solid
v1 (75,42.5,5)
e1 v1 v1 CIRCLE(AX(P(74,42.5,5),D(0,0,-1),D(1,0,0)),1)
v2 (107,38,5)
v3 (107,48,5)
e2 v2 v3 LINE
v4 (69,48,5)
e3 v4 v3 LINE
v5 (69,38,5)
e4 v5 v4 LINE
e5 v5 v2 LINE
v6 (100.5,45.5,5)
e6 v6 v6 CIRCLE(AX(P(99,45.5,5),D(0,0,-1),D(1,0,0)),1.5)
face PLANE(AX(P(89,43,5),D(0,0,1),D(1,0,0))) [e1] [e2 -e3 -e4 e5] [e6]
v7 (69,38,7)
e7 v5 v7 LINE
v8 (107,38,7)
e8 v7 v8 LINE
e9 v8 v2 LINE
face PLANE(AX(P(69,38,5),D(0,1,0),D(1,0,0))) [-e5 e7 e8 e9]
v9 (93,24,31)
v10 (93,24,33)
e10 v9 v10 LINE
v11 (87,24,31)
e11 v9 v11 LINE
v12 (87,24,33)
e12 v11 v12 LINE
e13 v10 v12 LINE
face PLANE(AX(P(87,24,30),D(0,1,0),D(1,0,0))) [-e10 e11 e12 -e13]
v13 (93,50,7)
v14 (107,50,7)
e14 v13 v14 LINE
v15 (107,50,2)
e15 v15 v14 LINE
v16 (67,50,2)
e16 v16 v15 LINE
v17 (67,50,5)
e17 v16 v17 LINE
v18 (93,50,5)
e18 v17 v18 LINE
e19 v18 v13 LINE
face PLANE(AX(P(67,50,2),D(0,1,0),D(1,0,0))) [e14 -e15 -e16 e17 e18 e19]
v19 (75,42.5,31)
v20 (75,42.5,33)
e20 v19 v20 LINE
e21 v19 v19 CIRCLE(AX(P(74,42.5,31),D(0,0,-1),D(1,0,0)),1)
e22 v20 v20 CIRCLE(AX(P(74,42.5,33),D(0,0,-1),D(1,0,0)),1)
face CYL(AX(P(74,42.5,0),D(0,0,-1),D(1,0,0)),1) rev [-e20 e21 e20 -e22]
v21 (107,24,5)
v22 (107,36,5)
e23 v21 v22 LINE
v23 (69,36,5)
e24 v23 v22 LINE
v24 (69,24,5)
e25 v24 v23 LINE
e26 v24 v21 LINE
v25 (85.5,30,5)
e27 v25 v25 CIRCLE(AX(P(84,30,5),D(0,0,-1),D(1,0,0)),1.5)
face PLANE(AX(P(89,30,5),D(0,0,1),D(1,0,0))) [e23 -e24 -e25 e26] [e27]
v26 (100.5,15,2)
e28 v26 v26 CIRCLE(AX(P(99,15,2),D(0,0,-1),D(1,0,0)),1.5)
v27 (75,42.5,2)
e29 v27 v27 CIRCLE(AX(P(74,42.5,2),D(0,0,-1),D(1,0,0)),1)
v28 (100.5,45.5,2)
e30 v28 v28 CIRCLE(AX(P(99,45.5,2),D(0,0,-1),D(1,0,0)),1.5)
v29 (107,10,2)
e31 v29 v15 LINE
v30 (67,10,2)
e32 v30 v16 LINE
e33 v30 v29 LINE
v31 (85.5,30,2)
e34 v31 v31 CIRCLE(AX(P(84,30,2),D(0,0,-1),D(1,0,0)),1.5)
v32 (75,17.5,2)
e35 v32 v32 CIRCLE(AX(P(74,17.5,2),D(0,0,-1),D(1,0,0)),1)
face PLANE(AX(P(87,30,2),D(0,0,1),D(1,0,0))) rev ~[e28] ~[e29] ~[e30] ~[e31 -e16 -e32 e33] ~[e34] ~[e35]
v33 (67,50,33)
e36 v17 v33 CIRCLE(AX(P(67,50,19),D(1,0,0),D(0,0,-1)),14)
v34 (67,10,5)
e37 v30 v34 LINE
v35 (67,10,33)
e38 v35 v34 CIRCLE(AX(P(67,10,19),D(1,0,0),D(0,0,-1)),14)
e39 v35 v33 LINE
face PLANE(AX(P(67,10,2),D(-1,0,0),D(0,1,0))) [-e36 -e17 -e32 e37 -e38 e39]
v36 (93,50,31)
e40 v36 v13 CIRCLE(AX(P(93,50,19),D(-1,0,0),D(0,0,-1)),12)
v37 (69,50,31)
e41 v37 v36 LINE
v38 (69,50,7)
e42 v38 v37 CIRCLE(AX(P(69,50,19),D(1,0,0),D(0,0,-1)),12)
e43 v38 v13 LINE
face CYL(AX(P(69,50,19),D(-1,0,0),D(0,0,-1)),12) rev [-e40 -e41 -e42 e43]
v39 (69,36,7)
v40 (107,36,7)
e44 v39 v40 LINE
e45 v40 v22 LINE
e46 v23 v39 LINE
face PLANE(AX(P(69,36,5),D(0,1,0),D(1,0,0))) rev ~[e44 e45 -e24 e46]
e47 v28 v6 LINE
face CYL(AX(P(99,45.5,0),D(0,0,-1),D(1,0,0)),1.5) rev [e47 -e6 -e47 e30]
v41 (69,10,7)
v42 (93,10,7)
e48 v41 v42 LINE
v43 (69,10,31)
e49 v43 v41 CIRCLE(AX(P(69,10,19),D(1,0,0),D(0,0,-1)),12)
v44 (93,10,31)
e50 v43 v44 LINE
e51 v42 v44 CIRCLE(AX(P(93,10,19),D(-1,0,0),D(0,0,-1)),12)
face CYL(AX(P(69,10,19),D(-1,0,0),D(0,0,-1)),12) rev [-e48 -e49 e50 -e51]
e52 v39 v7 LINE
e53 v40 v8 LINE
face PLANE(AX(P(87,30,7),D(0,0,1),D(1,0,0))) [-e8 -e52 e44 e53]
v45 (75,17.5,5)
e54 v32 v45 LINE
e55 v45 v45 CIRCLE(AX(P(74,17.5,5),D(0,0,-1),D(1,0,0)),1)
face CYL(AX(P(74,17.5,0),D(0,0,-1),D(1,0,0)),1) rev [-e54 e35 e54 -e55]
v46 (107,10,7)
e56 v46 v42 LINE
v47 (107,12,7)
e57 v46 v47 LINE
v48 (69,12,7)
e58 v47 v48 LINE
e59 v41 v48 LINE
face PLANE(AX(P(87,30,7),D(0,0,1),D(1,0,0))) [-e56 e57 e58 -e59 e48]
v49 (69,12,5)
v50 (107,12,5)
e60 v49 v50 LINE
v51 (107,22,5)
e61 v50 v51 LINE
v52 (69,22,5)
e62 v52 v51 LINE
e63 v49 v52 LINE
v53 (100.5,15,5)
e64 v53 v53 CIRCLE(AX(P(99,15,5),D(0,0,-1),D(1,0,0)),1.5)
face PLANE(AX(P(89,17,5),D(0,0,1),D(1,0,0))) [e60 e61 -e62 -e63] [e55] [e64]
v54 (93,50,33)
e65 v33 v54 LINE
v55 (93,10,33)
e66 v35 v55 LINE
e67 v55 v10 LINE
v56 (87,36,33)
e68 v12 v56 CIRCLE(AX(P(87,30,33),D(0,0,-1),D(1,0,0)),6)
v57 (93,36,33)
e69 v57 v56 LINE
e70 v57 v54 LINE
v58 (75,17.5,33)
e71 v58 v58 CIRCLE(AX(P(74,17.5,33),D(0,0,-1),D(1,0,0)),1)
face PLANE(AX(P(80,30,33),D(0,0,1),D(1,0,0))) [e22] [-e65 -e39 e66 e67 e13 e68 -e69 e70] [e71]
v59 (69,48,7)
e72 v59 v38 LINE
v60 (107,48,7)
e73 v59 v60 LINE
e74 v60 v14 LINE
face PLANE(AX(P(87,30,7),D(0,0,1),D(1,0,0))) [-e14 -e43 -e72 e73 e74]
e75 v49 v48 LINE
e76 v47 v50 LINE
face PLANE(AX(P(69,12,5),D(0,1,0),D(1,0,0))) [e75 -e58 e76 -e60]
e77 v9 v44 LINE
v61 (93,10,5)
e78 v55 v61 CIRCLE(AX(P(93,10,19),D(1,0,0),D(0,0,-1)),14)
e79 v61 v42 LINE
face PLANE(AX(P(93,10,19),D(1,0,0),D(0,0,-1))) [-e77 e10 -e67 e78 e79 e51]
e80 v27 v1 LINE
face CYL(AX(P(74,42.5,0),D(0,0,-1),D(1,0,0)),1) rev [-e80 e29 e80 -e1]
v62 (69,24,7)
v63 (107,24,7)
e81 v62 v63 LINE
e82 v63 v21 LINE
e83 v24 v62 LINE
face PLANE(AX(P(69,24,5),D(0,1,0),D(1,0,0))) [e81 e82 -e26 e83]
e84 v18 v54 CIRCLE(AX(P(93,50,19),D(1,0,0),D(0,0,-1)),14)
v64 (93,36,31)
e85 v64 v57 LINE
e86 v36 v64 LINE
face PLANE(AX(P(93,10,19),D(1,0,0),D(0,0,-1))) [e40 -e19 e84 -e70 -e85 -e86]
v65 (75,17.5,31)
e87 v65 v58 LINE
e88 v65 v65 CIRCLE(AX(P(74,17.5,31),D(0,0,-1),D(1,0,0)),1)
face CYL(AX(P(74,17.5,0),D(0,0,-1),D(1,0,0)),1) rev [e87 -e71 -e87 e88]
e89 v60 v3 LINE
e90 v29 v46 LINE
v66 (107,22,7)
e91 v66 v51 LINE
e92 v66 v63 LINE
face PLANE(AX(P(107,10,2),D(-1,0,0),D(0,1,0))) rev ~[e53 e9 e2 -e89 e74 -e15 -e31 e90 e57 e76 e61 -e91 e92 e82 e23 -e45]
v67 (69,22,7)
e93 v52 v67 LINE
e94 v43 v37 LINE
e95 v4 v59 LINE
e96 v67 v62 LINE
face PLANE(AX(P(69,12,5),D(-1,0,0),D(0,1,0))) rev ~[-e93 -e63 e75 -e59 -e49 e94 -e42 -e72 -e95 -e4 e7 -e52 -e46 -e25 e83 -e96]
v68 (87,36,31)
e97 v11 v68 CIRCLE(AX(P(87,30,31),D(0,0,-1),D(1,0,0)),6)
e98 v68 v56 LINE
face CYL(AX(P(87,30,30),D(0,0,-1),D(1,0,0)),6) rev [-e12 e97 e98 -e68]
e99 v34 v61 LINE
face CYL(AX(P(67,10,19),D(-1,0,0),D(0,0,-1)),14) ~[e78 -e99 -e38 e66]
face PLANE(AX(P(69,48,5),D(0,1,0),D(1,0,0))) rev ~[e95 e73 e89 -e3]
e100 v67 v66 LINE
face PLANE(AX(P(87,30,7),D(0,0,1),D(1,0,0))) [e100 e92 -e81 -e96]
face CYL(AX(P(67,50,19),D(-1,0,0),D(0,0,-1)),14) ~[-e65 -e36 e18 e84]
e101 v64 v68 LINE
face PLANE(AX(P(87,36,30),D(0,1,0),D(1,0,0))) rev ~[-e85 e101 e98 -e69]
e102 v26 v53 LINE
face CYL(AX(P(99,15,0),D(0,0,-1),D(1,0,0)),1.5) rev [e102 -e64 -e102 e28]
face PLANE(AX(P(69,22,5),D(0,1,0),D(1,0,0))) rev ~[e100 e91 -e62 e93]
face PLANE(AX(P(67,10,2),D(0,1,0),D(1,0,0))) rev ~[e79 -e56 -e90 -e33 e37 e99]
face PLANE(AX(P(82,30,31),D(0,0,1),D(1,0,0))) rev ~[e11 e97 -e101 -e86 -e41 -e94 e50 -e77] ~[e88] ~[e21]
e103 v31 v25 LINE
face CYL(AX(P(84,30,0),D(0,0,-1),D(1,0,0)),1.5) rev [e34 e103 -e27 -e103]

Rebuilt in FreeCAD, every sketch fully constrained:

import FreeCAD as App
import Part
import Sketcher

V = App.Vector


def add_polygon(sketch, points):
    """Adds a closed chain of lines whose ends are joined by coincident constraints."""
    first, n = sketch.GeometryCount, len(points)
    for a, b in zip(points, points[1:] + points[:1]):
        sketch.addGeometry(Part.LineSegment(App.Vector(*a, 0), App.Vector(*b, 0)), False)
    for i in range(n):
        sketch.addConstraint(Sketcher.Constraint("Coincident", first + i, 2, first + (i + 1) % n, 1))

doc = App.newDocument("Part")
params = doc.addObject("Spreadsheet::Sheet", "Params")
for row, (alias, value) in enumerate([
    ("sketch1_diameter", "2 mm"),
    ("pad1_length", "40 mm"),
    ("sketch2_diameter", "3 mm"),
    ("pad2_length", "40 mm"),
    ("sketch3_diameter", "3 mm"),
    ("pad3_length", "40 mm"),
    ("sketch4_diameter", "3 mm"),
    ("pad4_length", "40 mm"),
    ("sketch5_diameter", "2 mm"),
    ("pad5_length", "40 mm"),
    ("sketch6_diameter", "24 mm"),
    ("pad6_length", "26 mm"),
    ("sketch7_diameter", "24 mm"),
    ("pad7_length", "26 mm"),
    ("sketch8_width", "40 mm"),
    ("sketch8_height", "10 mm"),
    ("pad8_length", "3 mm"),
    ("sketch9_width", "40 mm"),
    ("sketch9_height", "12 mm"),
    ("pad9_length", "3 mm"),
    ("sketch10_width", "40 mm"),
    ("sketch10_height", "10 mm"),
    ("pad10_length", "3 mm"),
    ("sketch11_width", "10 mm"),
    ("sketch11_height", "12 mm"),
    ("pad11_length", "4 mm"),
    ("sketch12_diameter", "12 mm"),
    ("pad12_length", "4 mm"),
    ("sketch13_width", "26 mm"),
    ("sketch13_height", "40 mm"),
    ("pad13_length", "24 mm"),
    ("sketch14_diameter", "28 mm"),
    ("pad14_length", "26 mm"),
    ("sketch15_diameter", "28 mm"),
    ("pad15_length", "26 mm"),
    ("sketch16_width", "40 mm"),
    ("pad16_length", "5 mm"),
    ("sketch17_width", "26 mm"),
    ("sketch17_height", "40 mm"),
    ("pad17_length", "28 mm"),
], start=1):
    params.set(f"A{row}", alias)
    params.set(f"B{row}", "=" + value)
    params.setAlias(f"B{row}", alias)

body = doc.addObject("PartDesign::Body", "Body")

# Sketch on XY plane
sketch1 = doc.addObject("Sketcher::SketchObject", "Sketch")
body.addObject(sketch1)
sketch1.AttachmentSupport = (doc.XY_Plane, [""])
sketch1.MapMode = "FlatFace"
sketch1.addGeometry(Part.Circle(V(74, 42.5, 0), V(0, 0, 1), 1), False)
sketch1.addConstraint(Sketcher.Constraint("Diameter", 0, 2.0))
sketch1.addConstraint(Sketcher.Constraint("DistanceX", -1, 1, 0, 3, 74.0))
sketch1.addConstraint(Sketcher.Constraint("DistanceY", -1, 1, 0, 3, 42.5))
sketch1.setExpression("Constraints[0]", "Params.sketch1_diameter")
pad1 = doc.addObject("PartDesign::Pad", "Pad")
body.addObject(pad1)
pad1.Profile = sketch1
pad1.setExpression("Length", "Params.pad1_length")
body2 = doc.addObject("PartDesign::Body", "Body001")

# Sketch on XY plane
sketch2 = doc.addObject("Sketcher::SketchObject", "Sketch001")
body2.addObject(sketch2)
sketch2.AttachmentSupport = (doc.getObject("XY_Plane001"), [""])
sketch2.MapMode = "FlatFace"
sketch2.addGeometry(Part.Circle(V(99, 15, 0), V(0, 0, 1), 1.5), False)
sketch2.addConstraint(Sketcher.Constraint("Diameter", 0, 3.0))
sketch2.addConstraint(Sketcher.Constraint("DistanceX", -1, 1, 0, 3, 99.0))
sketch2.addConstraint(Sketcher.Constraint("DistanceY", -1, 1, 0, 3, 15.0))
sketch2.setExpression("Constraints[0]", "Params.sketch2_diameter")
pad2 = doc.addObject("PartDesign::Pad", "Pad001")
body2.addObject(pad2)
pad2.Profile = sketch2
pad2.setExpression("Length", "Params.pad2_length")
body3 = doc.addObject("PartDesign::Body", "Body002")

# Sketch on XY plane
sketch3 = doc.addObject("Sketcher::SketchObject", "Sketch002")
body3.addObject(sketch3)
sketch3.AttachmentSupport = (doc.getObject("XY_Plane002"), [""])
sketch3.MapMode = "FlatFace"
sketch3.addGeometry(Part.Circle(V(99, 45.5, 0), V(0, 0, 1), 1.5), False)
sketch3.addConstraint(Sketcher.Constraint("Diameter", 0, 3.0))
sketch3.addConstraint(Sketcher.Constraint("DistanceX", -1, 1, 0, 3, 99.0))
sketch3.addConstraint(Sketcher.Constraint("DistanceY", -1, 1, 0, 3, 45.5))
sketch3.setExpression("Constraints[0]", "Params.sketch3_diameter")
pad3 = doc.addObject("PartDesign::Pad", "Pad002")
body3.addObject(pad3)
pad3.Profile = sketch3
pad3.setExpression("Length", "Params.pad3_length")
body4 = doc.addObject("PartDesign::Body", "Body003")

# Sketch on XY plane
sketch4 = doc.addObject("Sketcher::SketchObject", "Sketch003")
body4.addObject(sketch4)
sketch4.AttachmentSupport = (doc.getObject("XY_Plane003"), [""])
sketch4.MapMode = "FlatFace"
sketch4.addGeometry(Part.Circle(V(84, 30, 0), V(0, 0, 1), 1.5), False)
sketch4.addConstraint(Sketcher.Constraint("Diameter", 0, 3.0))
sketch4.addConstraint(Sketcher.Constraint("DistanceX", -1, 1, 0, 3, 84.0))
sketch4.addConstraint(Sketcher.Constraint("DistanceY", -1, 1, 0, 3, 30.0))
sketch4.setExpression("Constraints[0]", "Params.sketch4_diameter")
pad4 = doc.addObject("PartDesign::Pad", "Pad003")
body4.addObject(pad4)
pad4.Profile = sketch4
pad4.setExpression("Length", "Params.pad4_length")
body5 = doc.addObject("PartDesign::Body", "Body004")
body5.AllowCompound = True

# Sketch on XY plane
sketch5 = doc.addObject("Sketcher::SketchObject", "Sketch004")
body5.addObject(sketch5)
sketch5.AttachmentSupport = (doc.getObject("XY_Plane004"), [""])
sketch5.MapMode = "FlatFace"
sketch5.addGeometry(Part.Circle(V(74, 17.5, 0), V(0, 0, 1), 1), False)
sketch5.addConstraint(Sketcher.Constraint("Diameter", 0, 2.0))
sketch5.addConstraint(Sketcher.Constraint("DistanceX", -1, 1, 0, 3, 74.0))
sketch5.addConstraint(Sketcher.Constraint("DistanceY", -1, 1, 0, 3, 17.5))
sketch5.setExpression("Constraints[0]", "Params.sketch5_diameter")
pad5 = doc.addObject("PartDesign::Pad", "Pad004")
body5.addObject(pad5)
pad5.Profile = sketch5
pad5.setExpression("Length", "Params.pad5_length")
doc.recompute()

boolean = doc.addObject("PartDesign::Boolean", "Boolean")
body5.addObject(boolean)
boolean.Type = "Fuse"
boolean.addObjects([body])
doc.recompute()

boolean2 = doc.addObject("PartDesign::Boolean", "Boolean001")
body5.addObject(boolean2)
boolean2.Type = "Fuse"
boolean2.addObjects([body2])
doc.recompute()

boolean3 = doc.addObject("PartDesign::Boolean", "Boolean002")
body5.addObject(boolean3)
boolean3.Type = "Fuse"
boolean3.addObjects([body3])
doc.recompute()

boolean4 = doc.addObject("PartDesign::Boolean", "Boolean003")
body5.addObject(boolean4)
boolean4.Type = "Fuse"
boolean4.addObjects([body4])
body6 = doc.addObject("PartDesign::Body", "Body005")

# Sketch on XY plane
sketch6 = doc.addObject("Sketcher::SketchObject", "Sketch005")
body6.addObject(sketch6)
sketch6.AttachmentSupport = (doc.getObject("XY_Plane005"), [""])
sketch6.MapMode = "FlatFace"
sketch6.addGeometry(Part.Circle(V(0, 0, 0), V(0, 0, 1), 12), False)
sketch6.addConstraint(Sketcher.Constraint("Coincident", 0, 3, -1, 1))
sketch6.addConstraint(Sketcher.Constraint("Diameter", 0, 24.0))
sketch6.setExpression("Constraints[1]", "Params.sketch6_diameter")
pad6 = doc.addObject("PartDesign::Pad", "Pad005")
body6.addObject(pad6)
pad6.Profile = sketch6
pad6.setExpression("Length", "Params.pad6_length")
body7 = doc.addObject("PartDesign::Body", "Body006")
doc.recompute()

body6.Placement = App.Placement(V(0, 0, 0), App.Rotation(V(0, 1, 0), 90))
boolean5 = doc.addObject("PartDesign::Boolean", "Boolean004")
body7.addObject(boolean5)
boolean5.Type = "Fuse"
boolean5.addObjects([body6])
body8 = doc.addObject("PartDesign::Body", "Body007")
doc.recompute()

body7.Placement = App.Placement(V(2, 10, 19), App.Rotation(V(0, 0, 1), 0))
boolean6 = doc.addObject("PartDesign::Boolean", "Boolean005")
body8.addObject(boolean6)
boolean6.Type = "Fuse"
boolean6.addObjects([body7])
body9 = doc.addObject("PartDesign::Body", "Body008")

# Sketch on XY plane
sketch7 = doc.addObject("Sketcher::SketchObject", "Sketch006")
body9.addObject(sketch7)
sketch7.AttachmentSupport = (doc.getObject("XY_Plane008"), [""])
sketch7.MapMode = "FlatFace"
sketch7.addGeometry(Part.Circle(V(0, 0, 0), V(0, 0, 1), 12), False)
sketch7.addConstraint(Sketcher.Constraint("Coincident", 0, 3, -1, 1))
sketch7.addConstraint(Sketcher.Constraint("Diameter", 0, 24.0))
sketch7.setExpression("Constraints[1]", "Params.sketch7_diameter")
pad7 = doc.addObject("PartDesign::Pad", "Pad006")
body9.addObject(pad7)
pad7.Profile = sketch7
pad7.setExpression("Length", "Params.pad7_length")
body10 = doc.addObject("PartDesign::Body", "Body009")
doc.recompute()

body9.Placement = App.Placement(V(0, 0, 0), App.Rotation(V(0, 1, 0), 90))
boolean7 = doc.addObject("PartDesign::Boolean", "Boolean006")
body10.addObject(boolean7)
boolean7.Type = "Fuse"
boolean7.addObjects([body9])
body11 = doc.addObject("PartDesign::Body", "Body010")
doc.recompute()

body10.Placement = App.Placement(V(2, 50, 19), App.Rotation(V(0, 0, 1), 0))
boolean8 = doc.addObject("PartDesign::Boolean", "Boolean007")
body11.addObject(boolean8)
boolean8.Type = "Fuse"
boolean8.addObjects([body10])
body12 = doc.addObject("PartDesign::Body", "Body011")

# Sketch on XY plane
sketch8 = doc.addObject("Sketcher::SketchObject", "Sketch007")
body12.addObject(sketch8)
sketch8.AttachmentSupport = (doc.getObject("XY_Plane011"), [""])
sketch8.MapMode = "FlatFace"
sketch8.AttachmentOffset = App.Placement(V(0, 0, 5), App.Rotation())
add_polygon(sketch8, [(2, 48), (2, 38), (42, 38), (42, 48)])  # lines 0-3
sketch8.addConstraint(Sketcher.Constraint("Vertical", 0))
sketch8.addConstraint(Sketcher.Constraint("Horizontal", 1))
sketch8.addConstraint(Sketcher.Constraint("Vertical", 2))
sketch8.addConstraint(Sketcher.Constraint("Horizontal", 3))
sketch8.addConstraint(Sketcher.Constraint("DistanceX", 1, 1, 1, 2, 40.0))
sketch8.addConstraint(Sketcher.Constraint("DistanceY", 0, 2, 0, 1, 10.0))
sketch8.addConstraint(Sketcher.Constraint("DistanceX", -1, 1, 0, 2, 2.0))
sketch8.addConstraint(Sketcher.Constraint("DistanceY", -1, 1, 0, 2, 38.0))
sketch8.setExpression("Constraints[8]", "Params.sketch8_width")
sketch8.setExpression("Constraints[9]", "Params.sketch8_height")
pad8 = doc.addObject("PartDesign::Pad", "Pad007")
body12.addObject(pad8)
pad8.Profile = sketch8
pad8.setExpression("Length", "Params.pad8_length")
body13 = doc.addObject("PartDesign::Body", "Body012")

# Sketch on XY plane
sketch9 = doc.addObject("Sketcher::SketchObject", "Sketch008")
body13.addObject(sketch9)
sketch9.AttachmentSupport = (doc.getObject("XY_Plane012"), [""])
sketch9.MapMode = "FlatFace"
sketch9.AttachmentOffset = App.Placement(V(0, 0, 5), App.Rotation())
add_polygon(sketch9, [(2, 36), (2, 24), (42, 24), (42, 36)])  # lines 0-3
sketch9.addConstraint(Sketcher.Constraint("Vertical", 0))
sketch9.addConstraint(Sketcher.Constraint("Horizontal", 1))
sketch9.addConstraint(Sketcher.Constraint("Vertical", 2))
sketch9.addConstraint(Sketcher.Constraint("Horizontal", 3))
sketch9.addConstraint(Sketcher.Constraint("DistanceX", 1, 1, 1, 2, 40.0))
sketch9.addConstraint(Sketcher.Constraint("DistanceY", 0, 2, 0, 1, 12.0))
sketch9.addConstraint(Sketcher.Constraint("DistanceX", -1, 1, 0, 2, 2.0))
sketch9.addConstraint(Sketcher.Constraint("DistanceY", -1, 1, 0, 2, 24.0))
sketch9.setExpression("Constraints[8]", "Params.sketch9_width")
sketch9.setExpression("Constraints[9]", "Params.sketch9_height")
pad9 = doc.addObject("PartDesign::Pad", "Pad008")
body13.addObject(pad9)
pad9.Profile = sketch9
pad9.setExpression("Length", "Params.pad9_length")
body14 = doc.addObject("PartDesign::Body", "Body013")

# Sketch on XY plane
sketch10 = doc.addObject("Sketcher::SketchObject", "Sketch009")
body14.addObject(sketch10)
sketch10.AttachmentSupport = (doc.getObject("XY_Plane013"), [""])
sketch10.MapMode = "FlatFace"
sketch10.AttachmentOffset = App.Placement(V(0, 0, 5), App.Rotation())
add_polygon(sketch10, [(2, 22), (2, 12), (42, 12), (42, 22)])  # lines 0-3
sketch10.addConstraint(Sketcher.Constraint("Vertical", 0))
sketch10.addConstraint(Sketcher.Constraint("Horizontal", 1))
sketch10.addConstraint(Sketcher.Constraint("Vertical", 2))
sketch10.addConstraint(Sketcher.Constraint("Horizontal", 3))
sketch10.addConstraint(Sketcher.Constraint("DistanceX", 1, 1, 1, 2, 40.0))
sketch10.addConstraint(Sketcher.Constraint("DistanceY", 0, 2, 0, 1, 10.0))
sketch10.addConstraint(Sketcher.Constraint("DistanceX", -1, 1, 0, 2, 2.0))
sketch10.addConstraint(Sketcher.Constraint("DistanceY", -1, 1, 0, 2, 12.0))
sketch10.setExpression("Constraints[8]", "Params.sketch10_width")
sketch10.setExpression("Constraints[9]", "Params.sketch10_height")
pad10 = doc.addObject("PartDesign::Pad", "Pad009")
body14.addObject(pad10)
pad10.Profile = sketch10
pad10.setExpression("Length", "Params.pad10_length")
body15 = doc.addObject("PartDesign::Body", "Body014")

# Sketch on XY plane
sketch11 = doc.addObject("Sketcher::SketchObject", "Sketch010")
body15.addObject(sketch11)
sketch11.AttachmentSupport = (doc.getObject("XY_Plane014"), [""])
sketch11.MapMode = "FlatFace"
sketch11.AttachmentOffset = App.Placement(V(0, 0, 30), App.Rotation())
add_polygon(sketch11, [(20, 36), (20, 24), (30, 24), (30, 36)])  # lines 0-3
sketch11.addConstraint(Sketcher.Constraint("Vertical", 0))
sketch11.addConstraint(Sketcher.Constraint("Horizontal", 1))
sketch11.addConstraint(Sketcher.Constraint("Vertical", 2))
sketch11.addConstraint(Sketcher.Constraint("Horizontal", 3))
sketch11.addConstraint(Sketcher.Constraint("DistanceX", 1, 1, 1, 2, 10.0))
sketch11.addConstraint(Sketcher.Constraint("DistanceY", 0, 2, 0, 1, 12.0))
sketch11.addConstraint(Sketcher.Constraint("DistanceX", -1, 1, 0, 2, 20.0))
sketch11.addConstraint(Sketcher.Constraint("DistanceY", -1, 1, 0, 2, 24.0))
sketch11.setExpression("Constraints[8]", "Params.sketch11_width")
sketch11.setExpression("Constraints[9]", "Params.sketch11_height")
pad11 = doc.addObject("PartDesign::Pad", "Pad010")
body15.addObject(pad11)
pad11.Profile = sketch11
pad11.setExpression("Length", "Params.pad11_length")
body16 = doc.addObject("PartDesign::Body", "Body015")

# Sketch on XY plane
sketch12 = doc.addObject("Sketcher::SketchObject", "Sketch011")
body16.addObject(sketch12)
sketch12.AttachmentSupport = (doc.getObject("XY_Plane015"), [""])
sketch12.MapMode = "FlatFace"
sketch12.AttachmentOffset = App.Placement(V(0, 0, 30), App.Rotation())
sketch12.addGeometry(Part.Circle(V(20, 30, 0), V(0, 0, 1), 6), False)
sketch12.addConstraint(Sketcher.Constraint("Diameter", 0, 12.0))
sketch12.addConstraint(Sketcher.Constraint("DistanceX", -1, 1, 0, 3, 20.0))
sketch12.addConstraint(Sketcher.Constraint("DistanceY", -1, 1, 0, 3, 30.0))
sketch12.setExpression("Constraints[0]", "Params.sketch12_diameter")
pad12 = doc.addObject("PartDesign::Pad", "Pad011")
body16.addObject(pad12)
pad12.Profile = sketch12
pad12.setExpression("Length", "Params.pad12_length")
body17 = doc.addObject("PartDesign::Body", "Body016")

# Sketch on XY plane
sketch13 = doc.addObject("Sketcher::SketchObject", "Sketch012")
body17.addObject(sketch13)
sketch13.AttachmentSupport = (doc.getObject("XY_Plane016"), [""])
sketch13.MapMode = "FlatFace"
sketch13.AttachmentOffset = App.Placement(V(0, 0, 7), App.Rotation())
add_polygon(sketch13, [(2, 50), (2, 10), (28, 10), (28, 50)])  # lines 0-3
sketch13.addConstraint(Sketcher.Constraint("Vertical", 0))
sketch13.addConstraint(Sketcher.Constraint("Horizontal", 1))
sketch13.addConstraint(Sketcher.Constraint("Vertical", 2))
sketch13.addConstraint(Sketcher.Constraint("Horizontal", 3))
sketch13.addConstraint(Sketcher.Constraint("DistanceX", 1, 1, 1, 2, 26.0))
sketch13.addConstraint(Sketcher.Constraint("DistanceY", 0, 2, 0, 1, 40.0))
sketch13.addConstraint(Sketcher.Constraint("DistanceX", -1, 1, 0, 2, 2.0))
sketch13.addConstraint(Sketcher.Constraint("DistanceY", -1, 1, 0, 2, 10.0))
sketch13.setExpression("Constraints[8]", "Params.sketch13_width")
sketch13.setExpression("Constraints[9]", "Params.sketch13_height")
pad13 = doc.addObject("PartDesign::Pad", "Pad012")
body17.addObject(pad13)
pad13.Profile = sketch13
pad13.setExpression("Length", "Params.pad13_length")
doc.recompute()

boolean9 = doc.addObject("PartDesign::Boolean", "Boolean008")
body17.addObject(boolean9)
boolean9.Type = "Fuse"
boolean9.addObjects([body8])
doc.recompute()

boolean10 = doc.addObject("PartDesign::Boolean", "Boolean009")
body17.addObject(boolean10)
boolean10.Type = "Fuse"
boolean10.addObjects([body11])
doc.recompute()

boolean11 = doc.addObject("PartDesign::Boolean", "Boolean010")
body17.addObject(boolean11)
boolean11.Type = "Fuse"
boolean11.addObjects([body12])
doc.recompute()

boolean12 = doc.addObject("PartDesign::Boolean", "Boolean011")
body17.addObject(boolean12)
boolean12.Type = "Fuse"
boolean12.addObjects([body13])
doc.recompute()

boolean13 = doc.addObject("PartDesign::Boolean", "Boolean012")
body17.addObject(boolean13)
boolean13.Type = "Fuse"
boolean13.addObjects([body14])
doc.recompute()

boolean14 = doc.addObject("PartDesign::Boolean", "Boolean013")
body17.addObject(boolean14)
boolean14.Type = "Fuse"
boolean14.addObjects([body15])
doc.recompute()

boolean15 = doc.addObject("PartDesign::Boolean", "Boolean014")
body17.addObject(boolean15)
boolean15.Type = "Fuse"
boolean15.addObjects([body16])
body18 = doc.addObject("PartDesign::Body", "Body017")

# Sketch on XY plane
sketch14 = doc.addObject("Sketcher::SketchObject", "Sketch013")
body18.addObject(sketch14)
sketch14.AttachmentSupport = (doc.getObject("XY_Plane017"), [""])
sketch14.MapMode = "FlatFace"
sketch14.addGeometry(Part.Circle(V(0, 0, 0), V(0, 0, 1), 14), False)
sketch14.addConstraint(Sketcher.Constraint("Coincident", 0, 3, -1, 1))
sketch14.addConstraint(Sketcher.Constraint("Diameter", 0, 28.0))
sketch14.setExpression("Constraints[1]", "Params.sketch14_diameter")
pad14 = doc.addObject("PartDesign::Pad", "Pad013")
body18.addObject(pad14)
pad14.Profile = sketch14
pad14.setExpression("Length", "Params.pad14_length")
body19 = doc.addObject("PartDesign::Body", "Body018")
doc.recompute()

body18.Placement = App.Placement(V(0, 0, 0), App.Rotation(V(0, 1, 0), 90))
boolean16 = doc.addObject("PartDesign::Boolean", "Boolean015")
body19.addObject(boolean16)
boolean16.Type = "Fuse"
boolean16.addObjects([body18])
body20 = doc.addObject("PartDesign::Body", "Body019")
doc.recompute()

body19.Placement = App.Placement(V(0, 50, 19), App.Rotation(V(0, 0, 1), 0))
boolean17 = doc.addObject("PartDesign::Boolean", "Boolean016")
body20.addObject(boolean17)
boolean17.Type = "Fuse"
boolean17.addObjects([body19])
body21 = doc.addObject("PartDesign::Body", "Body020")

# Sketch on XY plane
sketch15 = doc.addObject("Sketcher::SketchObject", "Sketch014")
body21.addObject(sketch15)
sketch15.AttachmentSupport = (doc.getObject("XY_Plane020"), [""])
sketch15.MapMode = "FlatFace"
sketch15.addGeometry(Part.Circle(V(0, 0, 0), V(0, 0, 1), 14), False)
sketch15.addConstraint(Sketcher.Constraint("Coincident", 0, 3, -1, 1))
sketch15.addConstraint(Sketcher.Constraint("Diameter", 0, 28.0))
sketch15.setExpression("Constraints[1]", "Params.sketch15_diameter")
pad15 = doc.addObject("PartDesign::Pad", "Pad014")
body21.addObject(pad15)
pad15.Profile = sketch15
pad15.setExpression("Length", "Params.pad15_length")
body22 = doc.addObject("PartDesign::Body", "Body021")
doc.recompute()

body21.Placement = App.Placement(V(0, 0, 0), App.Rotation(V(0, 1, 0), 90))
boolean18 = doc.addObject("PartDesign::Boolean", "Boolean017")
body22.addObject(boolean18)
boolean18.Type = "Fuse"
boolean18.addObjects([body21])
body23 = doc.addObject("PartDesign::Body", "Body022")
doc.recompute()

body22.Placement = App.Placement(V(0, 10, 19), App.Rotation(V(0, 0, 1), 0))
boolean19 = doc.addObject("PartDesign::Boolean", "Boolean018")
body23.addObject(boolean19)
boolean19.Type = "Fuse"
boolean19.addObjects([body22])
body24 = doc.addObject("PartDesign::Body", "Body023")

# Sketch on XY plane
sketch16 = doc.addObject("Sketcher::SketchObject", "Sketch015")
body24.addObject(sketch16)
sketch16.AttachmentSupport = (doc.getObject("XY_Plane023"), [""])
sketch16.MapMode = "FlatFace"
sketch16.AttachmentOffset = App.Placement(V(0, 0, 2), App.Rotation())
add_polygon(sketch16, [(0, 50), (0, 10), (40, 10), (40, 50)])  # lines 0-3
sketch16.addConstraint(Sketcher.Constraint("Vertical", 0))
sketch16.addConstraint(Sketcher.Constraint("Horizontal", 1))
sketch16.addConstraint(Sketcher.Constraint("Vertical", 2))
sketch16.addConstraint(Sketcher.Constraint("Horizontal", 3))
sketch16.addConstraint(Sketcher.Constraint("PointOnObject", 0, 2, -2))
sketch16.addConstraint(Sketcher.Constraint("Equal", 3, 0))
sketch16.addConstraint(Sketcher.Constraint("DistanceX", 1, 1, 1, 2, 40.0))
sketch16.addConstraint(Sketcher.Constraint("DistanceY", -1, 1, 0, 2, 10.0))
sketch16.setExpression("Constraints[10]", "Params.sketch16_width")
pad16 = doc.addObject("PartDesign::Pad", "Pad015")
body24.addObject(pad16)
pad16.Profile = sketch16
pad16.setExpression("Length", "Params.pad16_length")
body25 = doc.addObject("PartDesign::Body", "Body024")

# Sketch on XY plane
sketch17 = doc.addObject("Sketcher::SketchObject", "Sketch016")
body25.addObject(sketch17)
sketch17.AttachmentSupport = (doc.getObject("XY_Plane024"), [""])
sketch17.MapMode = "FlatFace"
sketch17.AttachmentOffset = App.Placement(V(0, 0, 5), App.Rotation())
add_polygon(sketch17, [(0, 50), (0, 10), (26, 10), (26, 50)])  # lines 0-3
sketch17.addConstraint(Sketcher.Constraint("Vertical", 0))
sketch17.addConstraint(Sketcher.Constraint("Horizontal", 1))
sketch17.addConstraint(Sketcher.Constraint("Vertical", 2))
sketch17.addConstraint(Sketcher.Constraint("Horizontal", 3))
sketch17.addConstraint(Sketcher.Constraint("PointOnObject", 0, 2, -2))
sketch17.addConstraint(Sketcher.Constraint("DistanceX", 1, 1, 1, 2, 26.0))
sketch17.addConstraint(Sketcher.Constraint("DistanceY", 0, 2, 0, 1, 40.0))
sketch17.addConstraint(Sketcher.Constraint("DistanceY", -1, 1, 0, 2, 10.0))
sketch17.setExpression("Constraints[9]", "Params.sketch17_width")
sketch17.setExpression("Constraints[10]", "Params.sketch17_height")
pad17 = doc.addObject("PartDesign::Pad", "Pad016")
body25.addObject(pad17)
pad17.Profile = sketch17
pad17.setExpression("Length", "Params.pad17_length")
doc.recompute()

boolean20 = doc.addObject("PartDesign::Boolean", "Boolean019")
body25.addObject(boolean20)
boolean20.Type = "Fuse"
boolean20.addObjects([body20])
doc.recompute()

boolean21 = doc.addObject("PartDesign::Boolean", "Boolean020")
body25.addObject(boolean21)
boolean21.Type = "Fuse"
boolean21.addObjects([body23])
doc.recompute()

boolean22 = doc.addObject("PartDesign::Boolean", "Boolean021")
body25.addObject(boolean22)
boolean22.Type = "Fuse"
boolean22.addObjects([body24])
doc.recompute()

boolean23 = doc.addObject("PartDesign::Boolean", "Boolean022")
body25.addObject(boolean23)
boolean23.Type = "Cut"
boolean23.addObjects([body17])
body26 = doc.addObject("PartDesign::Body", "Body025")
doc.recompute()

body25.Placement = App.Placement(V(67, 0, 0), App.Rotation(V(0, 0, 1), 0))
boolean24 = doc.addObject("PartDesign::Boolean", "Boolean023")
body26.addObject(boolean24)
boolean24.Type = "Fuse"
boolean24.addObjects([body25])
doc.recompute()

boolean25 = doc.addObject("PartDesign::Boolean", "Boolean024")
body26.addObject(boolean25)
boolean25.Type = "Cut"
boolean25.addObjects([body5])

doc.recompute()
